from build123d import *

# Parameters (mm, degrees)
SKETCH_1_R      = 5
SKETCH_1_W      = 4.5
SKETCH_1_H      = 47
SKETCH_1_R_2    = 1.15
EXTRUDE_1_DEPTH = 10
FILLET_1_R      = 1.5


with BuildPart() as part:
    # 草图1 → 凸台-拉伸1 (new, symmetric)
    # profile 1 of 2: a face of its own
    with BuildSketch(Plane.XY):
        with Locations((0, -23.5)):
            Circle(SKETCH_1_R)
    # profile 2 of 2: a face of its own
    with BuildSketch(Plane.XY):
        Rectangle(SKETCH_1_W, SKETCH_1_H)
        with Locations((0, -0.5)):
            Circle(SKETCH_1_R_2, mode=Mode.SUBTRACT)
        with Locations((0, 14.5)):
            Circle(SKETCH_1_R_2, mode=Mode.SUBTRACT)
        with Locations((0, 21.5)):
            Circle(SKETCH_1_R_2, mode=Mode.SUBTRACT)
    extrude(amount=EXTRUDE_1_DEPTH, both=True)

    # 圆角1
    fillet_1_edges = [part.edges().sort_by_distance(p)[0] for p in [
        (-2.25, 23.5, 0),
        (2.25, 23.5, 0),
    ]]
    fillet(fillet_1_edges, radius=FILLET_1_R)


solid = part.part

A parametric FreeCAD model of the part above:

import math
import FreeCAD as App
import Part
import Sketcher
from FreeCAD import Vector
Q = App.Units.Quantity


def edges_at(feature, points):
    """Names of the edges that pass closest to the given points."""
    edges = feature.Shape.Edges
    near = lambda p: min(range(len(edges)), key=lambda i: edges[i].distToShape(Part.Vertex(*p))[0])
    return sorted({f"Edge{near(p) + 1}" for p in points})

doc = App.newDocument("Part")
body = doc.addObject("PartDesign::Body", "Body")

sketch1 = body.newObject("Sketcher::SketchObject", "Sketch")
sketch1.AttachmentSupport = (doc.getObject("XY_Plane"), [""])
sketch1.MapMode = "FlatFace"
sketch1.addGeometry(Part.ArcOfCircle(Part.Circle(Vector(0, -23.5, 0), Vector(0, 0, 1), 5), math.radians(117), math.radians(423)), False)
sketch1.addGeometry(Part.LineSegment(Vector(2.2, -19, 0), Vector(2.2, 23.5, 0)), False)
sketch1.addGeometry(Part.LineSegment(Vector(2.2, 23.5, 0), Vector(-2.2, 23.5, 0)), False)
sketch1.addGeometry(Part.LineSegment(Vector(-2.2, 23.5, 0), Vector(-2.2, -19, 0)), False)
sketch1.addGeometry(Part.Circle(Vector(0, 21.5, 0), Vector(0, 0, 1), 1.1), False)
sketch1.addGeometry(Part.Circle(Vector(0, -0.5, 0), Vector(0, 0, 1), 1.1), False)
sketch1.addGeometry(Part.Circle(Vector(0, 14.5, 0), Vector(0, 0, 1), 1.1), False)
sketch1.addConstraint(Sketcher.Constraint("Coincident", 0, 2, 1, 1))
sketch1.addConstraint(Sketcher.Constraint("Coincident", 1, 2, 2, 1))
sketch1.addConstraint(Sketcher.Constraint("Coincident", 2, 2, 3, 1))
sketch1.addConstraint(Sketcher.Constraint("Coincident", 3, 2, 0, 1))
sketch1.addConstraint(Sketcher.Constraint("Vertical", 1))
sketch1.addConstraint(Sketcher.Constraint("Horizontal", 2))
sketch1.addConstraint(Sketcher.Constraint("Vertical", 3))
sketch1.addConstraint(Sketcher.Constraint("Equal", 4, 5))
sketch1.addConstraint(Sketcher.Constraint("Equal", 5, 6))
sketch1.addConstraint(Sketcher.Constraint("Symmetric", 0, 2, 3, 2, -2))
sketch1.addConstraint(Sketcher.Constraint("PointOnObject", 4, 3, -2))
sketch1.addConstraint(Sketcher.Constraint("PointOnObject", 5, 3, -2))
sketch1.addConstraint(Sketcher.Constraint("PointOnObject", 6, 3, -2))
sketch1.addConstraint(Sketcher.Constraint("Radius", 0, Q("5 mm")))
sketch1.addConstraint(Sketcher.Constraint("Diameter", 4, Q("2.3 mm")))
sketch1.addConstraint(Sketcher.Constraint("DistanceX", 2, 2, 2, 1, Q("4.5 mm")))
sketch1.addConstraint(Sketcher.Constraint("DistanceY", 0, 3, 4, 3, Q("45 mm")))
sketch1.addConstraint(Sketcher.Constraint("DistanceY", 5, 3, 4, 3, Q("22 mm")))
sketch1.addConstraint(Sketcher.Constraint("DistanceY", 6, 3, 4, 3, Q("7 mm")))
sketch1.addConstraint(Sketcher.Constraint("DistanceY", 4, 3, 1, 2, Q("2 mm")))
sketch1.addConstraint(Sketcher.Constraint("DistanceY", 0, 3, -1, 1, Q("23.5 mm")))
pad1 = body.newObject("PartDesign::Pad", "Pad")
pad1.Profile = sketch1
pad1.Length = 20
pad1.Midplane = True
doc.recompute()

fillet = body.newObject("PartDesign::Fillet", "Fillet")
fillet.Base = (pad1, edges_at(pad1, [(-2.25, 23.5, 0), (2.25, 23.5, 0)]))
fillet.Radius = 1.5

doc.recompute()
